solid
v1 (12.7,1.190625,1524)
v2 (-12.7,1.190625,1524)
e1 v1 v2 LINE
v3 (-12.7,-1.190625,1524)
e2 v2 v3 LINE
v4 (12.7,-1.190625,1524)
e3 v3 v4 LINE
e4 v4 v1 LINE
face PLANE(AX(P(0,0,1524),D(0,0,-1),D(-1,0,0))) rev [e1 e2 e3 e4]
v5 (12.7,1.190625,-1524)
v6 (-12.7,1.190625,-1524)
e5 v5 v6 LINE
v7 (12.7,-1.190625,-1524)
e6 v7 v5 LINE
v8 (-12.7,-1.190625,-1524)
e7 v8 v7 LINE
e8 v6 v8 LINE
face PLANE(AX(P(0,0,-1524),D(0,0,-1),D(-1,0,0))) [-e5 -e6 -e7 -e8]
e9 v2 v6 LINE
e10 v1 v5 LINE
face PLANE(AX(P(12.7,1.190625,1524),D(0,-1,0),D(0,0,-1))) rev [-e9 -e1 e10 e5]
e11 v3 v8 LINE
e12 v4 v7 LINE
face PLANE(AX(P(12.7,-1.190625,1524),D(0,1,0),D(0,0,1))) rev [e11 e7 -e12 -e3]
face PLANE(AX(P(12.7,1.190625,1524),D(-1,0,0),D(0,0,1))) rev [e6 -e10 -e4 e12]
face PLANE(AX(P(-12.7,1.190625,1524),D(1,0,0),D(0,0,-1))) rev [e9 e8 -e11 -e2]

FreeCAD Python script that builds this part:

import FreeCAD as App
import Part
import Sketcher
Q = App.Units.Quantity


def add_polygon(sketch, points):
    """Adds a closed chain of lines whose ends are joined by coincident constraints."""
    first, n = sketch.GeometryCount, len(points)
    for a, b in zip(points, points[1:] + points[:1]):
        sketch.addGeometry(Part.LineSegment(App.Vector(*a, 0), App.Vector(*b, 0)), False)
    for i in range(n):
        sketch.addConstraint(Sketcher.Constraint("Coincident", first + i, 2, first + (i + 1) % n, 1))

doc = App.newDocument("Part")
body = doc.addObject("PartDesign::Body", "Body")

sketch1 = doc.addObject("Sketcher::SketchObject", "Sketch")
body.addObject(sketch1)
sketch1.AttachmentSupport = (doc.XY_Plane, [""])
sketch1.MapMode = "FlatFace"
add_polygon(sketch1, [(-12.7, 1.190625), (-12.7, -1.190625), (12.7, -1.190625), (12.7, 1.190625)])
sketch1.addConstraint([
    Sketcher.Constraint("Vertical", 0),
    Sketcher.Constraint("Horizontal", 1),
    Sketcher.Constraint("Vertical", 2),
    Sketcher.Constraint("Horizontal", 3),
    Sketcher.Constraint("Symmetric", 0, 2, 2, 2, -1, 1),
    Sketcher.Constraint("DistanceX", 1, 1, 1, 2, Q("1 in")),
    Sketcher.Constraint("DistanceY", 0, 2, 0, 1, Q("0.09375 in")),
])
pad1 = doc.addObject("PartDesign::Pad", "Pad")
body.addObject(pad1)
pad1.Profile = sketch1
pad1.Type = "TwoLengths"
pad1.Length = Q("60 in")
pad1.Length2 = Q("60 in")

doc.recompute()
